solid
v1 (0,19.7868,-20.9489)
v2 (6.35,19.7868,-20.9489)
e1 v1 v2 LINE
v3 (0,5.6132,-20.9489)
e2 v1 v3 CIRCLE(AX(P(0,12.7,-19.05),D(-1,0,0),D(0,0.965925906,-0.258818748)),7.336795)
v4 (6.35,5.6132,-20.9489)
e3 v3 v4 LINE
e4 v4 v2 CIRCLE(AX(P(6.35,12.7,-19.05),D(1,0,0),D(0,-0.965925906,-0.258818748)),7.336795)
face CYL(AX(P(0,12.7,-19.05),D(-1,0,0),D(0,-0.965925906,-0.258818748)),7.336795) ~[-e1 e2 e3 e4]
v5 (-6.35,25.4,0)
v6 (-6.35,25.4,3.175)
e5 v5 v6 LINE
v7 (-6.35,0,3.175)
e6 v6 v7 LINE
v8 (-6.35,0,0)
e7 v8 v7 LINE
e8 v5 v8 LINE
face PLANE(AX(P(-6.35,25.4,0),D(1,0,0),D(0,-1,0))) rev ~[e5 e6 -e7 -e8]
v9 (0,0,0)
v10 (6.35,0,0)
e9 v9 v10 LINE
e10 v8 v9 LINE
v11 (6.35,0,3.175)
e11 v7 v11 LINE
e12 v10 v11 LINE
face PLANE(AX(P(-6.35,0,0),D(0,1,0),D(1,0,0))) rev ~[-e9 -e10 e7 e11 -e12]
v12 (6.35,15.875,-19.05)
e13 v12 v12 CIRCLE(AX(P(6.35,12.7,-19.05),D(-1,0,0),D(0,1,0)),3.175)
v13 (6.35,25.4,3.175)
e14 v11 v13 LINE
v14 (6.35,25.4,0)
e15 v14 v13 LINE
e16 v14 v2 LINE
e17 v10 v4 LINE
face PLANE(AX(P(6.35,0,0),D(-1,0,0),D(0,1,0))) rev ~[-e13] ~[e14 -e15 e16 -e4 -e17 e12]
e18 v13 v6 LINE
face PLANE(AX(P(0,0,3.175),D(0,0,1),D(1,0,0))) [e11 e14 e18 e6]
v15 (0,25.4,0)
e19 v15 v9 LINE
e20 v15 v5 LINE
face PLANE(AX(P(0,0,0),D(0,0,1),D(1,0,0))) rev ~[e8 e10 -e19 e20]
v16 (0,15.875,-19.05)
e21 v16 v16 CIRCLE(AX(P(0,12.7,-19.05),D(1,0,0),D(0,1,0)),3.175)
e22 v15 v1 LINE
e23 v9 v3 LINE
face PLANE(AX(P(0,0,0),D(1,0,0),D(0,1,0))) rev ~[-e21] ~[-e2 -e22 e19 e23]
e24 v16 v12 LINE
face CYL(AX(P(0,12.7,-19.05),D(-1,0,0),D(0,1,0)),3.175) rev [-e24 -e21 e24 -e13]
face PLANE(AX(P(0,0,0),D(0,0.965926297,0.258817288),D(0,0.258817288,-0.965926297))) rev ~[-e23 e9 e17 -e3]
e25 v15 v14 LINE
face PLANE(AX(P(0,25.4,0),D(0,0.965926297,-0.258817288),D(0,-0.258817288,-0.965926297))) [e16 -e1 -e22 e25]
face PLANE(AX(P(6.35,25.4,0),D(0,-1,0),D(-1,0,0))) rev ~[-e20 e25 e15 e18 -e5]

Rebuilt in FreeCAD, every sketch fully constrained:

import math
import FreeCAD as App
import Part
import Sketcher
from FreeCAD import Vector
Q = App.Units.Quantity

doc = App.newDocument("Part")
body = doc.addObject("PartDesign::Body", "Body")

# Sketch on YZ plane
sketch1 = doc.addObject("Sketcher::SketchObject", "Sketch")
body.addObject(sketch1)
sketch1.AttachmentSupport = (doc.YZ_Plane, [""])
sketch1.MapMode = "FlatFace"
sketch1.addGeometry([
    Part.LineSegment(Vector(0, 0, 0), Vector(5.6, -20.9, 0)),  # 0
    Part.ArcOfCircle(Part.Circle(Vector(12.7, -19.1, 0), Vector(0, 0, 1), 7.3), math.radians(-165), math.radians(-15)),  # 1
    Part.LineSegment(Vector(19.8, -20.9, 0), Vector(25.4, 0, 0)),  # 2
    Part.LineSegment(Vector(25.4, 0, 0), Vector(0, 0, 0)),  # 3
    Part.Circle(Vector(12.7, -19.1, 0), Vector(0, 0, 1), 3.2),  # 4
], False)
sketch1.addConstraint([
    Sketcher.Constraint("Tangent", 0, 2, 1, 1),
    Sketcher.Constraint("Tangent", 1, 2, 2, 1),
    Sketcher.Constraint("Coincident", 2, 2, 3, 1),
    Sketcher.Constraint("Coincident", 3, 2, 0, 1),
    Sketcher.Constraint("Horizontal", 3),
    Sketcher.Constraint("Coincident", 3, 2, -1, 1),
    Sketcher.Constraint("Coincident", 4, 3, 1, 3),
    Sketcher.Constraint("Horizontal", 0, 2, 1, 2),
    Sketcher.Constraint("Diameter", 4, Q("0.25 in")),
    Sketcher.Constraint("DistanceX", 3, 2, 3, 1, Q("1 in")),
    Sketcher.Constraint("Angle", 0, Q("-75 deg")),
    Sketcher.Constraint("DistanceY", 1, 3, -1, 1, Q("0.75 in")),
])
pad1 = doc.addObject("PartDesign::Pad", "Pad")
body.addObject(pad1)
pad1.Profile = sketch1
pad1.Length = Q("0.25 in")

# Sketch on XY plane
sketch2 = doc.addObject("Sketcher::SketchObject", "Sketch001")
body.addObject(sketch2)
sketch2.AttachmentSupport = (doc.XY_Plane, [""])
sketch2.MapMode = "FlatFace"
sketch2.addGeometry([
    Part.LineSegment(Vector(6, 0, 0), Vector(6, 25, 0)),
    Part.LineSegment(Vector(6, 25, 0), Vector(-6, 25, 0)),
    Part.LineSegment(Vector(-6, 25, 0), Vector(-6, 0, 0)),
    Part.LineSegment(Vector(-6, 0, 0), Vector(6, 0, 0)),
], False)
sketch2.addConstraint([
    Sketcher.Constraint("Coincident", 0, 2, 1, 1),
    Sketcher.Constraint("Coincident", 1, 2, 2, 1),
    Sketcher.Constraint("Coincident", 2, 2, 3, 1),
    Sketcher.Constraint("Coincident", 3, 2, 0, 1),
    Sketcher.Constraint("Vertical", 0),
    Sketcher.Constraint("Horizontal", 1),
    Sketcher.Constraint("Vertical", 2),
    Sketcher.Constraint("Horizontal", 3),
    Sketcher.Constraint("Symmetric", 2, 2, 3, 2, -1, 1),
    Sketcher.Constraint("DistanceX", 1, 2, 1, 1, Q("0.5 in")),
    Sketcher.Constraint("DistanceY", 0, 1, 0, 2, Q("1 in")),
])
pad2 = doc.addObject("PartDesign::Pad", "Pad001")
body.addObject(pad2)
pad2.Profile = sketch2
pad2.Length = Q("0.125 in")

doc.recompute()
